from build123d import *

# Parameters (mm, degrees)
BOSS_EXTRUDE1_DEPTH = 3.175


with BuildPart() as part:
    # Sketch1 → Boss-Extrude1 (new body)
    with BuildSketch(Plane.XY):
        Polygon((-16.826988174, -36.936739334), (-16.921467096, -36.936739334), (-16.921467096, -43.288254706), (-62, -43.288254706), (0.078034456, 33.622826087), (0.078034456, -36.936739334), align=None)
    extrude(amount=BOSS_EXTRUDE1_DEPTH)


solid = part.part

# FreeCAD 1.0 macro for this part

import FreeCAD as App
import Part
import Sketcher
Q = App.Units.Quantity

doc = App.newDocument("Part")
body = doc.addObject("PartDesign::Body", "Body")

sketch1 = body.newObject("Sketcher::SketchObject", "Sketch")
sketch1.AttachmentSupport = (doc.getObject("XY_Plane"), [""])
sketch1.MapMode = "FlatFace"
sketch1.addGeometry([
    Part.LineSegment(App.Vector(-17, -37, 0), App.Vector(0, -37, 0)),
    Part.LineSegment(App.Vector(0, -37, 0), App.Vector(0, 34, 0)),
    Part.LineSegment(App.Vector(0, 34, 0), App.Vector(-62, -43, 0)),
    Part.LineSegment(App.Vector(-62, -43, 0), App.Vector(-17, -43, 0)),
    Part.LineSegment(App.Vector(-17, -43, 0), App.Vector(-17, -37, 0)),
], False)
sketch1.addConstraint([
    Sketcher.Constraint("Coincident", 0, 2, 1, 1),
    Sketcher.Constraint("Coincident", 1, 2, 2, 1),
    Sketcher.Constraint("Coincident", 2, 2, 3, 1),
    Sketcher.Constraint("Coincident", 3, 2, 4, 1),
    Sketcher.Constraint("Coincident", 4, 2, 0, 1),
    Sketcher.Constraint("Horizontal", 0),
    Sketcher.Constraint("Vertical", 1),
    Sketcher.Constraint("Horizontal", 3),
    Sketcher.Constraint("Vertical", 4),
    Sketcher.Constraint("DistanceX", 0, 1, 0, 2, 16.999502),
    Sketcher.Constraint("DistanceX", 2, 2, -1, 1, 62.0),
    Sketcher.Constraint("DistanceX", 3, 1, 3, 2, 45.078533),
    Sketcher.Constraint("DistanceY", 1, 1, 1, 2, 70.559565),
    Sketcher.Constraint("DistanceY", 4, 1, 4, 2, 6.351515),
    Sketcher.Constraint("DistanceY", 0, 2, -1, 1, 36.936739),
])
pad1 = body.newObject("PartDesign::Pad", "Pad")
pad1.Profile = sketch1
pad1.Length = Q("0.125 in")

doc.recompute()
